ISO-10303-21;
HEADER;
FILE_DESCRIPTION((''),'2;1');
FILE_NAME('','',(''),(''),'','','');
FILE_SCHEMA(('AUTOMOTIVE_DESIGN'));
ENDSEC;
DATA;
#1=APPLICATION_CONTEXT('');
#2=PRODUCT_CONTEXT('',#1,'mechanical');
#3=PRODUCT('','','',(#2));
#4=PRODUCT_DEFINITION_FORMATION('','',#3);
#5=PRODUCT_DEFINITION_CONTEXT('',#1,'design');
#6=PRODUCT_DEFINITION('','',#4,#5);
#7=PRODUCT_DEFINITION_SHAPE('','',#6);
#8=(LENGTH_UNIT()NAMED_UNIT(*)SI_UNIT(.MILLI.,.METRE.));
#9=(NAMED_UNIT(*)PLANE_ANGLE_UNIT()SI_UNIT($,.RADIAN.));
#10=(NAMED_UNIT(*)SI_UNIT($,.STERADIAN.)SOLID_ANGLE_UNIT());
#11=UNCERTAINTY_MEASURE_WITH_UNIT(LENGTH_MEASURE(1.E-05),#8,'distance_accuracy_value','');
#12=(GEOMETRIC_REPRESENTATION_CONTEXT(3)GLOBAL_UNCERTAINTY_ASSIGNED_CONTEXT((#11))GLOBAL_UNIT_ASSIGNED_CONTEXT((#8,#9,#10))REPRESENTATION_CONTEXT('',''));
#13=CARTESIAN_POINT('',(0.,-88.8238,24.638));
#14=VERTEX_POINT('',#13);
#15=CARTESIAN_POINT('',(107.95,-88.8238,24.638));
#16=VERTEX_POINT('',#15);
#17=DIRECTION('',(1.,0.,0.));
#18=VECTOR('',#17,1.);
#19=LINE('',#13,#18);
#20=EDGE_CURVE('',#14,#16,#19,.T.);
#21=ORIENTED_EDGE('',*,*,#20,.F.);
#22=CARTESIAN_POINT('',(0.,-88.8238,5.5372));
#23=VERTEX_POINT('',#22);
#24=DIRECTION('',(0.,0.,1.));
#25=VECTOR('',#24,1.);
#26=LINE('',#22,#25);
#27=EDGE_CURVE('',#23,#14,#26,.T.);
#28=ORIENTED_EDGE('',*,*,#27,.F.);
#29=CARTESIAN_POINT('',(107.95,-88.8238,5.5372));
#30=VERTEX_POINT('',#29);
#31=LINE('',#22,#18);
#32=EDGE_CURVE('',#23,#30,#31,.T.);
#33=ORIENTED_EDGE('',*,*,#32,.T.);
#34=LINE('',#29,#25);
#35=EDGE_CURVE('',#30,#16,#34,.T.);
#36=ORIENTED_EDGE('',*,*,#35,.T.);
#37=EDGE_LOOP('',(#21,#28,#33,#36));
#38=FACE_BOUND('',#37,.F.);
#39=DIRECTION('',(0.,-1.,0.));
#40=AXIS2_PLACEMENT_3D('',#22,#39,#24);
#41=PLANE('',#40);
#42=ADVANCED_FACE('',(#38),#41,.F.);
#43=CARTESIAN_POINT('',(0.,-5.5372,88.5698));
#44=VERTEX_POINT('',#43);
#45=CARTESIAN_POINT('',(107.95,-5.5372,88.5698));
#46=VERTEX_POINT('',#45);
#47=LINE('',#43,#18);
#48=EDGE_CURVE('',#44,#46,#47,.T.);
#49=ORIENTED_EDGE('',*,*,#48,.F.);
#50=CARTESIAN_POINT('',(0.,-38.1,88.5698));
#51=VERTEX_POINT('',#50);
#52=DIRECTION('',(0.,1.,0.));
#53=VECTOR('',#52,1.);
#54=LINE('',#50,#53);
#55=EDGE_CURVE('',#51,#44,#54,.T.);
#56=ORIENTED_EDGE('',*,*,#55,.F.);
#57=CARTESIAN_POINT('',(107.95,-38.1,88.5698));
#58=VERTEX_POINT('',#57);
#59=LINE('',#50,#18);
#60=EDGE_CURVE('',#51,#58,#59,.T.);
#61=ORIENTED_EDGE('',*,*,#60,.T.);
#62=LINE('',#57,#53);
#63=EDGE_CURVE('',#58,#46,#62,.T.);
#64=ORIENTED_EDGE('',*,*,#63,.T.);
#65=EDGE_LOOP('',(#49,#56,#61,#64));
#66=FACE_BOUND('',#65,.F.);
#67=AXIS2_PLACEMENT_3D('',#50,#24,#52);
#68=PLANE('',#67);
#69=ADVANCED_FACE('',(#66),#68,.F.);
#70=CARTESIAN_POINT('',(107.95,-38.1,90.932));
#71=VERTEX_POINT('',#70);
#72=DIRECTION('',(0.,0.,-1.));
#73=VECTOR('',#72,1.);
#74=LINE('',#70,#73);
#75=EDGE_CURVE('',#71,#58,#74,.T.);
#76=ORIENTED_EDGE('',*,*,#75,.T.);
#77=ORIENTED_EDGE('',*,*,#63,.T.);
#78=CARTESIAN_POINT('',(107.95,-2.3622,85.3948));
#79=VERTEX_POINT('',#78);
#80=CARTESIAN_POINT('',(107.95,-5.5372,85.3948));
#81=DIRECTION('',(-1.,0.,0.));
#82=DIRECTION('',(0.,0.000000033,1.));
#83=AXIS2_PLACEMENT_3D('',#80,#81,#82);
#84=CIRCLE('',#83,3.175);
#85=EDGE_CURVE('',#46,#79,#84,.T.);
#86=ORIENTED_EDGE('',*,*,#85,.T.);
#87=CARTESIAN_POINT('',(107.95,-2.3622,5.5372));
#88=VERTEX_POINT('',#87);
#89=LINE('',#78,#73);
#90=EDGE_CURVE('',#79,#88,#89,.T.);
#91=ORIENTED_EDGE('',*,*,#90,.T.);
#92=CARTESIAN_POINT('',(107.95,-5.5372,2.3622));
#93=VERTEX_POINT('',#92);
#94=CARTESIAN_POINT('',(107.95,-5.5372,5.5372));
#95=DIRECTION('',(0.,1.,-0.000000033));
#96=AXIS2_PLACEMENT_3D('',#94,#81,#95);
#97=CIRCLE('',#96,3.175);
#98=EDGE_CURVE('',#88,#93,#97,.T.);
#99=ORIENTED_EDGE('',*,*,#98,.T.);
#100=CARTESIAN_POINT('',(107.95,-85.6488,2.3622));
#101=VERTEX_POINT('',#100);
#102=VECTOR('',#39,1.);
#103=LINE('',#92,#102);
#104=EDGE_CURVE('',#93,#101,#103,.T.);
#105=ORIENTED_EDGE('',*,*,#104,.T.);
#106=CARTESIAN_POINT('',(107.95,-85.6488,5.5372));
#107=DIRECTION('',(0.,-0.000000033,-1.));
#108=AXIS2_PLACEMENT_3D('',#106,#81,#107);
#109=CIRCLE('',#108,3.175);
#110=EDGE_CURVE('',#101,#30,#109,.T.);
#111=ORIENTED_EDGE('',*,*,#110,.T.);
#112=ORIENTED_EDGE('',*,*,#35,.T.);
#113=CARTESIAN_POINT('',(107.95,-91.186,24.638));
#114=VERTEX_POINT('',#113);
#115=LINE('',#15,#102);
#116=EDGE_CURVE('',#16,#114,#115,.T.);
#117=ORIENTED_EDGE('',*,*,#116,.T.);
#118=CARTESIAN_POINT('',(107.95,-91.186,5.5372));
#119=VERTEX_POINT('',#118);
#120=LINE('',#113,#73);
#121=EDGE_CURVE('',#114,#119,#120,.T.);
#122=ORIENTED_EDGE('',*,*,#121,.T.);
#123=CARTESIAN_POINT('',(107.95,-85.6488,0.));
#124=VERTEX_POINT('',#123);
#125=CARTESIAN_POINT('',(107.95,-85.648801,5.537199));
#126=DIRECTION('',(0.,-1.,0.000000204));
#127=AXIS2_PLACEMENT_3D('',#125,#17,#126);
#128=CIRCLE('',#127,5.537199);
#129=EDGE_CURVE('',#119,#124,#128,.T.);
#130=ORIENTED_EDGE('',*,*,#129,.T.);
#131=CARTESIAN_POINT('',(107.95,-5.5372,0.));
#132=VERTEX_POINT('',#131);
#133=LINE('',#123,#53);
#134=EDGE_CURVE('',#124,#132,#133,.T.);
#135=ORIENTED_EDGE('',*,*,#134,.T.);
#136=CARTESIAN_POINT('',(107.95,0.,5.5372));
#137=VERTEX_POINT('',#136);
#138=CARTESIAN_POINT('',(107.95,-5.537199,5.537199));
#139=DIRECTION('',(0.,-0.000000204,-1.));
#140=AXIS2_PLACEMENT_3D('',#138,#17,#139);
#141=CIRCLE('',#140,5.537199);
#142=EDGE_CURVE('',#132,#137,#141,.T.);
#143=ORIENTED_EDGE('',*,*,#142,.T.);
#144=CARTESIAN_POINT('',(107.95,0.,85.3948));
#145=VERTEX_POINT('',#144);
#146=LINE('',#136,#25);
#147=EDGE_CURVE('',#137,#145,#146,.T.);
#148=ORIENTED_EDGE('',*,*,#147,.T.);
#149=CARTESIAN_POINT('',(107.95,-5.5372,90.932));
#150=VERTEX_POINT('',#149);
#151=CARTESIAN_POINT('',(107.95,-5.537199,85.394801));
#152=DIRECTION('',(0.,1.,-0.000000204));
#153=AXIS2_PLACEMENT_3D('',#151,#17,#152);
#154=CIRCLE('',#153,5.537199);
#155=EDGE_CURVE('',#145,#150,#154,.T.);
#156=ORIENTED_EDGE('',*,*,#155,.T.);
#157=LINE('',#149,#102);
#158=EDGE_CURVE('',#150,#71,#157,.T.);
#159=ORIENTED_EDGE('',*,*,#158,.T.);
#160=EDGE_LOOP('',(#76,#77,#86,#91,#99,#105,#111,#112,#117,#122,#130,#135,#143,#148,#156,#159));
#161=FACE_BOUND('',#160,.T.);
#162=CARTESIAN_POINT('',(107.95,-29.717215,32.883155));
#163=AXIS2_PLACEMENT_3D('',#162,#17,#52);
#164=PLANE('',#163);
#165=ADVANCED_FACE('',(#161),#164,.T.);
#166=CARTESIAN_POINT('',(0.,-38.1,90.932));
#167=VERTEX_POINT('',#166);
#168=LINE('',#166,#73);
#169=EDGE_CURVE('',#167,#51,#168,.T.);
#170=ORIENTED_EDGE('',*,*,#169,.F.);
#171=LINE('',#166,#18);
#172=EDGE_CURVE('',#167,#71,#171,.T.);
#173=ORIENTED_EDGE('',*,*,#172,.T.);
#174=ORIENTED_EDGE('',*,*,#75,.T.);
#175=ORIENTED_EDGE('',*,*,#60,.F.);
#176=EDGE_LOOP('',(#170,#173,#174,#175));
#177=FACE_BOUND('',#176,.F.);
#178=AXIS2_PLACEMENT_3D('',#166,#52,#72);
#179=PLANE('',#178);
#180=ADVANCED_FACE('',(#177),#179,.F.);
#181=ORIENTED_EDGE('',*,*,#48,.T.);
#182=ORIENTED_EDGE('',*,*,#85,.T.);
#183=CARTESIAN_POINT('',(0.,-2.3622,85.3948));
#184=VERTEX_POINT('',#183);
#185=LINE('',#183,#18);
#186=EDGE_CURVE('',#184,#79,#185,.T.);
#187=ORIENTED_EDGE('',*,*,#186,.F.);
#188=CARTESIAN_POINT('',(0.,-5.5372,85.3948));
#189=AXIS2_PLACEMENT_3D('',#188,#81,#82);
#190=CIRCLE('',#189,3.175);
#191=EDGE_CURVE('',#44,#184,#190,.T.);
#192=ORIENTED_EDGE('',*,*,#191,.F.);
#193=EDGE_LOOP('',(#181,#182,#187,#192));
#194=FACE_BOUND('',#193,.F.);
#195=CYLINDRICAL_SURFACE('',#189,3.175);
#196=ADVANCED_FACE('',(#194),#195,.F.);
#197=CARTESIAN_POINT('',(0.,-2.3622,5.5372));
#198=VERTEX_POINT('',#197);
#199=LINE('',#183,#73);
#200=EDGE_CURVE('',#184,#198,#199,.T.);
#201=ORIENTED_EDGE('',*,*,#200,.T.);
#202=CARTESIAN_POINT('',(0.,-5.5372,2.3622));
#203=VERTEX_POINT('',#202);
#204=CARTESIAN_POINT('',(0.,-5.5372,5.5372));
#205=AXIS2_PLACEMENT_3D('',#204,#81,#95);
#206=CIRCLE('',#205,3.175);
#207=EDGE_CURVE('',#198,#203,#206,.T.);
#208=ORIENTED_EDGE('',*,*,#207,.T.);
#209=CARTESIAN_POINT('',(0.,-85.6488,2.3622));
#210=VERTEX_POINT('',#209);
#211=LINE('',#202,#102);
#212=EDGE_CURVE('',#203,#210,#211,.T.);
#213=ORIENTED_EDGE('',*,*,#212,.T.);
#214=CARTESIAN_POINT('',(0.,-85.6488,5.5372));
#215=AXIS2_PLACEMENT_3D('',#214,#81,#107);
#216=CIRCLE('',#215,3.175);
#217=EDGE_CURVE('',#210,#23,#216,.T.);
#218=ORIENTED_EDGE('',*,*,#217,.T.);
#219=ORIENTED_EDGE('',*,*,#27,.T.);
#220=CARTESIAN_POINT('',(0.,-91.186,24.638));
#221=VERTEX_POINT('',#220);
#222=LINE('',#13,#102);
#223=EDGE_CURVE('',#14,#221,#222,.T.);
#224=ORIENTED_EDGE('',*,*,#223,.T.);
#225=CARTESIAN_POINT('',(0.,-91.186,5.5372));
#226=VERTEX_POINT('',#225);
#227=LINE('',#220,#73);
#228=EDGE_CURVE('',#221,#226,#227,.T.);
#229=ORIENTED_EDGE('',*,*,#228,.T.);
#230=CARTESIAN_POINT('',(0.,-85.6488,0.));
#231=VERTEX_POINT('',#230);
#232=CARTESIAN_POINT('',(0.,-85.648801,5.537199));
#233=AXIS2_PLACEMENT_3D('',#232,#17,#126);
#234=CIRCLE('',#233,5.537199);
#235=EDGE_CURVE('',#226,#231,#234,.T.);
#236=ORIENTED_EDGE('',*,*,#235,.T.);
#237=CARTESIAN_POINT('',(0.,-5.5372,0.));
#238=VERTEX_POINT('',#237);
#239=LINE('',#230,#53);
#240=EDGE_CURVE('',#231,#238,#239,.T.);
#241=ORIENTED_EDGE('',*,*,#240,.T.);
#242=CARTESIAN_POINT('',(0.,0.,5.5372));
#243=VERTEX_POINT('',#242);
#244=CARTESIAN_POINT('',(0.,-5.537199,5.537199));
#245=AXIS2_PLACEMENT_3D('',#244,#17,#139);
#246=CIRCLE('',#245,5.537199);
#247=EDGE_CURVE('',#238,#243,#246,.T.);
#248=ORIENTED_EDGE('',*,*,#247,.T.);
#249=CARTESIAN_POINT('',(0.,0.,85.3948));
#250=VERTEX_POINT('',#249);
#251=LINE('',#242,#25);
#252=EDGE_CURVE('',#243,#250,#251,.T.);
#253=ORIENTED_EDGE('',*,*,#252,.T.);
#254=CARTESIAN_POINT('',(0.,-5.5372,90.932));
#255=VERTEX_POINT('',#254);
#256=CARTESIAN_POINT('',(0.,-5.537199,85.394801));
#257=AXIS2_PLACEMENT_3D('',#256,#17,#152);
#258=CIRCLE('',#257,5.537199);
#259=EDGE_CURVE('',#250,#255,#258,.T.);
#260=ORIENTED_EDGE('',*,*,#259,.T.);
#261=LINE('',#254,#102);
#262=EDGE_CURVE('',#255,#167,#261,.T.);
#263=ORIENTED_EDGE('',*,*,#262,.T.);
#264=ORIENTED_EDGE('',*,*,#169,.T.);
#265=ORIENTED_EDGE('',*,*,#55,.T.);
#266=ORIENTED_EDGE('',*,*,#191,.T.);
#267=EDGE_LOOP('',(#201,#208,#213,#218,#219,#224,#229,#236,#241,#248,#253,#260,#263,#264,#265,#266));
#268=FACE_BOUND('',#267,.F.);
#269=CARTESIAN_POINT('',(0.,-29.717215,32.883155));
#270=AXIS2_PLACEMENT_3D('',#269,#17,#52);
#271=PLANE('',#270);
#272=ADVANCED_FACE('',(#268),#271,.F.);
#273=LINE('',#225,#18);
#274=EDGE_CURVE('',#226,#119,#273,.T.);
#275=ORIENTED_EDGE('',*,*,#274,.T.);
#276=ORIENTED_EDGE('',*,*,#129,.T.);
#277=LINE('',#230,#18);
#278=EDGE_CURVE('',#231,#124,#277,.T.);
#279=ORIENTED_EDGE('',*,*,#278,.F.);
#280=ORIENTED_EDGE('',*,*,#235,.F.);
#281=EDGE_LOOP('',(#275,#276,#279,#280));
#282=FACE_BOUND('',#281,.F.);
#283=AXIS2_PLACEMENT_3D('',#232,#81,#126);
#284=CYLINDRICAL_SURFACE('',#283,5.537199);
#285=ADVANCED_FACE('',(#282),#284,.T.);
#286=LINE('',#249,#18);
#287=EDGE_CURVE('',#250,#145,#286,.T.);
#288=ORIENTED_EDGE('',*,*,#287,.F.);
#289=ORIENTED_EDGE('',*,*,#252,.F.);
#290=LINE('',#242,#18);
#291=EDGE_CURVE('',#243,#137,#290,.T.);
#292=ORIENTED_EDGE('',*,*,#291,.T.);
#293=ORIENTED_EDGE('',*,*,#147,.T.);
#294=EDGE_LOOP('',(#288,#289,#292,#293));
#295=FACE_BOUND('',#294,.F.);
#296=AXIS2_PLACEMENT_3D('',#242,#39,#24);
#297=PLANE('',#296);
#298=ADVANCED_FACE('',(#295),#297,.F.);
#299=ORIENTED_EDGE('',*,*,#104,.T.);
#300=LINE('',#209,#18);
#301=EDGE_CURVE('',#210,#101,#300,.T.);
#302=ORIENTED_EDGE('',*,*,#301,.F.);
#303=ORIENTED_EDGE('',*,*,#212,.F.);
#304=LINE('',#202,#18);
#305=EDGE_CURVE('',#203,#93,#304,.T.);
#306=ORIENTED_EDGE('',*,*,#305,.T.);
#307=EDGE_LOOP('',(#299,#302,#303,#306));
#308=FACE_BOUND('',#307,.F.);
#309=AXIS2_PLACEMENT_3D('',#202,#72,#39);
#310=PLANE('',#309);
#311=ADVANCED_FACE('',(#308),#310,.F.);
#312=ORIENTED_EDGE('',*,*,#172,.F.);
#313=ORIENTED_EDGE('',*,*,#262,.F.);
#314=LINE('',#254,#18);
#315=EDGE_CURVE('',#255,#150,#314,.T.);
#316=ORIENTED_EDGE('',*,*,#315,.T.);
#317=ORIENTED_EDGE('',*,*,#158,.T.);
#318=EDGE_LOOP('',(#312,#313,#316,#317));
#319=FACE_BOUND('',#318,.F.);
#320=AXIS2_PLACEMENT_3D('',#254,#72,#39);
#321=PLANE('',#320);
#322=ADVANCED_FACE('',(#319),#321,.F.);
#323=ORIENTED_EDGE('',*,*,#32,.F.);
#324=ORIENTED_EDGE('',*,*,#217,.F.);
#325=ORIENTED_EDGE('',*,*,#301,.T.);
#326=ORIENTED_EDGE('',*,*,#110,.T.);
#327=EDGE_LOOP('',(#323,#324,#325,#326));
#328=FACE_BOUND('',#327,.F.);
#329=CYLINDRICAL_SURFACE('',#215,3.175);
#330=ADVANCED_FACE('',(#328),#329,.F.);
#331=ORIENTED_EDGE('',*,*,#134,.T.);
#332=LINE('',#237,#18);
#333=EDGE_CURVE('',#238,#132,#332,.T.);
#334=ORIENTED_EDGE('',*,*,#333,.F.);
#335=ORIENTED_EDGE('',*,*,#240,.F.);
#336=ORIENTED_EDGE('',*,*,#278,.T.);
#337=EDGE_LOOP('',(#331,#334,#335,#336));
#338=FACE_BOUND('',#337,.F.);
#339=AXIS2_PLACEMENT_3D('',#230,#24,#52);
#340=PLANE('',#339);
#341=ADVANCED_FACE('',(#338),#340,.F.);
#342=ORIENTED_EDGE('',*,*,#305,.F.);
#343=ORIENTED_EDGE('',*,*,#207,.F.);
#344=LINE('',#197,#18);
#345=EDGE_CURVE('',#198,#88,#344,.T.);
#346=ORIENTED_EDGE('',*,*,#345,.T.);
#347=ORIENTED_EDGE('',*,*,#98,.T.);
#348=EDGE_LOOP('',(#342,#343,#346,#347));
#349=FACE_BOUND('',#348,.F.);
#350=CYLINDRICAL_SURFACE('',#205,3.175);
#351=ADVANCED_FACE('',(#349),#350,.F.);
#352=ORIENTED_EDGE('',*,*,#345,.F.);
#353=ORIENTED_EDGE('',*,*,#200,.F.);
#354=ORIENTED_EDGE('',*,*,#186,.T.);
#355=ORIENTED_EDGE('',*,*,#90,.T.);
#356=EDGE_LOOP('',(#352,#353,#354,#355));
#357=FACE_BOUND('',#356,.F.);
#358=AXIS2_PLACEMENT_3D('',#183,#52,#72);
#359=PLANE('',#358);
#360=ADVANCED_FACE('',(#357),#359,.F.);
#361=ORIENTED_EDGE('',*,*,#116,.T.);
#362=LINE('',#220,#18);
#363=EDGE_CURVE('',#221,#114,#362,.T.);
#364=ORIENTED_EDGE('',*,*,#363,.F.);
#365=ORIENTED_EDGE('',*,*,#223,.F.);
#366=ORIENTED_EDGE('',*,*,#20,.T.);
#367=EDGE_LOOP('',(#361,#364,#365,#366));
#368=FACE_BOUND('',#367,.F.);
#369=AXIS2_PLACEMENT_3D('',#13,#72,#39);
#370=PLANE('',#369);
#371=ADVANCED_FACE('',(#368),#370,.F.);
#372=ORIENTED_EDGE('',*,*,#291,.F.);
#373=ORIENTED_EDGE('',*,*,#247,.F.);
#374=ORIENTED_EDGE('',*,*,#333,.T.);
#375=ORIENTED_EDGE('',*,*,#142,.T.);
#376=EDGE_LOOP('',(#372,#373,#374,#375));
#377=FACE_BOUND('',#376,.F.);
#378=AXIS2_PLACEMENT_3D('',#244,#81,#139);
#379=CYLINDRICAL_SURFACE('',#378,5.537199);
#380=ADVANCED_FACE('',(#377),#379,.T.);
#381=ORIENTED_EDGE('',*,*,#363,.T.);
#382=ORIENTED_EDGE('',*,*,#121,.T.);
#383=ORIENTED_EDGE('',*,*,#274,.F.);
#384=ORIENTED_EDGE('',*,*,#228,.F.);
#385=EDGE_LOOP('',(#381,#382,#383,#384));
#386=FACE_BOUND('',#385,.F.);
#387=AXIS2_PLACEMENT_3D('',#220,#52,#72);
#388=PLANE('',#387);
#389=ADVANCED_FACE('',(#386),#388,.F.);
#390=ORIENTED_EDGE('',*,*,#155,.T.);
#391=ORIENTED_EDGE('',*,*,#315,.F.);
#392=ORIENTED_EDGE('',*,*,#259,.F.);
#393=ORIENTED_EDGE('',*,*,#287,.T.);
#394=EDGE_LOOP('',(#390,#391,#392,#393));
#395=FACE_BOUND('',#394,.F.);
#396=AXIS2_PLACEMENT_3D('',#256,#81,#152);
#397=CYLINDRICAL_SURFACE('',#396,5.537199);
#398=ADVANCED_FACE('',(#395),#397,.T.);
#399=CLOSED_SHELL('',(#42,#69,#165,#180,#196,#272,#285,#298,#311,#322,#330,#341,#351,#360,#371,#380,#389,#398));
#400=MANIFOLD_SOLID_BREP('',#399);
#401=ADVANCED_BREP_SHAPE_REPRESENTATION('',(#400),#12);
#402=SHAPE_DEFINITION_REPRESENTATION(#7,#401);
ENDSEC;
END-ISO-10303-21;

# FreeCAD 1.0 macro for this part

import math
import FreeCAD as App
import Part
import Sketcher

V = App.Vector
Q = App.Units.Quantity

doc = App.newDocument("Part")
body = doc.addObject("PartDesign::Body", "Body")

# Sketch on YZ plane
sketch1 = body.newObject("Sketcher::SketchObject", "Sketch")
sketch1.AttachmentSupport = (doc.getObject("YZ_Plane"), [""])
sketch1.MapMode = "FlatFace"
sketch1.addGeometry(Part.LineSegment(V(-88.8, 24.6, 0), V(-91.2, 24.6, 0)), False)
sketch1.addGeometry(Part.LineSegment(V(-91.2, 24.6, 0), V(-91.2, 5.5, 0)), False)
sketch1.addGeometry(Part.ArcOfCircle(Part.Circle(V(-85.6, 5.5, 0), V(0, 0, 1), 5.5), math.radians(180), math.radians(270)), False)
sketch1.addGeometry(Part.LineSegment(V(-85.6, 0, 0), V(-5.5, 0, 0)), False)
sketch1.addGeometry(Part.ArcOfCircle(Part.Circle(V(-5.5, 5.5, 0), V(0, 0, 1), 5.5), math.radians(-90), math.radians(0)), False)
sketch1.addGeometry(Part.LineSegment(V(0, 5.5, 0), V(0, 85.4, 0)), False)
sketch1.addGeometry(Part.ArcOfCircle(Part.Circle(V(-5.5, 85.4, 0), V(0, 0, 1), 5.5), math.radians(0), math.radians(90)), False)
sketch1.addGeometry(Part.LineSegment(V(-5.5, 90.9, 0), V(-38.1, 90.9, 0)), False)
sketch1.addGeometry(Part.LineSegment(V(-38.1, 90.9, 0), V(-38.1, 88.6, 0)), False)
sketch1.addGeometry(Part.LineSegment(V(-38.1, 88.6, 0), V(-5.5, 88.6, 0)), False)
sketch1.addGeometry(Part.ArcOfCircle(Part.Circle(V(-5.5, 85.4, 0), V(0, 0, 1), 3.2), math.radians(0), math.radians(90)), False)
sketch1.addGeometry(Part.LineSegment(V(-2.4, 85.4, 0), V(-2.4, 5.5, 0)), False)
sketch1.addGeometry(Part.ArcOfCircle(Part.Circle(V(-5.5, 5.5, 0), V(0, 0, 1), 3.2), math.radians(-90), math.radians(0)), False)
sketch1.addGeometry(Part.LineSegment(V(-5.5, 2.4, 0), V(-85.6, 2.4, 0)), False)
sketch1.addGeometry(Part.ArcOfCircle(Part.Circle(V(-85.6, 5.5, 0), V(0, 0, 1), 3.2), math.radians(-180), math.radians(-90)), False)
sketch1.addGeometry(Part.LineSegment(V(-88.8, 5.5, 0), V(-88.8, 24.6, 0)), False)
sketch1.addConstraint(Sketcher.Constraint("Coincident", 0, 2, 1, 1))
sketch1.addConstraint(Sketcher.Constraint("Tangent", 1, 2, 2, 1))
sketch1.addConstraint(Sketcher.Constraint("Tangent", 2, 2, 3, 1))
sketch1.addConstraint(Sketcher.Constraint("Tangent", 3, 2, 4, 1))
sketch1.addConstraint(Sketcher.Constraint("Tangent", 4, 2, 5, 1))
sketch1.addConstraint(Sketcher.Constraint("Tangent", 5, 2, 6, 1))
sketch1.addConstraint(Sketcher.Constraint("Tangent", 6, 2, 7, 1))
sketch1.addConstraint(Sketcher.Constraint("Coincident", 7, 2, 8, 1))
sketch1.addConstraint(Sketcher.Constraint("Coincident", 8, 2, 9, 1))
sketch1.addConstraint(Sketcher.Constraint("Tangent", 9, 2, 10, 2))
sketch1.addConstraint(Sketcher.Constraint("Tangent", 10, 1, 11, 1))
sketch1.addConstraint(Sketcher.Constraint("Tangent", 11, 2, 12, 2))
sketch1.addConstraint(Sketcher.Constraint("Tangent", 12, 1, 13, 1))
sketch1.addConstraint(Sketcher.Constraint("Tangent", 13, 2, 14, 2))
sketch1.addConstraint(Sketcher.Constraint("Tangent", 14, 1, 15, 1))
sketch1.addConstraint(Sketcher.Constraint("Coincident", 15, 2, 0, 1))
sketch1.addConstraint(Sketcher.Constraint("Horizontal", 0))
sketch1.addConstraint(Sketcher.Constraint("Vertical", 1))
sketch1.addConstraint(Sketcher.Constraint("Horizontal", 3))
sketch1.addConstraint(Sketcher.Constraint("Vertical", 5))
sketch1.addConstraint(Sketcher.Constraint("Horizontal", 7))
sketch1.addConstraint(Sketcher.Constraint("Vertical", 8))
sketch1.addConstraint(Sketcher.Constraint("Horizontal", 9))
sketch1.addConstraint(Sketcher.Constraint("Vertical", 11))
sketch1.addConstraint(Sketcher.Constraint("Horizontal", 13))
sketch1.addConstraint(Sketcher.Constraint("Vertical", 15))
sketch1.addConstraint(Sketcher.Constraint("Coincident", 10, 3, 6, 3))
sketch1.addConstraint(Sketcher.Constraint("Coincident", 12, 3, 4, 3))
sketch1.addConstraint(Sketcher.Constraint("Coincident", 14, 3, 2, 3))
sketch1.addConstraint(Sketcher.Constraint("Equal", 2, 4))
sketch1.addConstraint(Sketcher.Constraint("Equal", 4, 6))
sketch1.addConstraint(Sketcher.Constraint("PointOnObject", 2, 2, -1))
sketch1.addConstraint(Sketcher.Constraint("PointOnObject", 4, 2, -2))
sketch1.addConstraint(Sketcher.Constraint("Radius", 2, Q("0.218 in")))
sketch1.addConstraint(Sketcher.Constraint("Radius", 10, Q("0.125 in")))
sketch1.addConstraint(Sketcher.Constraint("DistanceX", 7, 2, -1, 1, Q("1.5 in")))
sketch1.addConstraint(Sketcher.Constraint("DistanceX", 3, 1, 3, 2, Q("3.154 in")))
sketch1.addConstraint(Sketcher.Constraint("DistanceY", 1, 2, 1, 1, Q("0.752 in")))
sketch1.addConstraint(Sketcher.Constraint("DistanceY", 5, 1, 5, 2, Q("3.144 in")))
pad1 = body.newObject("PartDesign::Pad", "Pad")
pad1.Profile = sketch1
pad1.Length = Q("4.25 in")

doc.recompute()
